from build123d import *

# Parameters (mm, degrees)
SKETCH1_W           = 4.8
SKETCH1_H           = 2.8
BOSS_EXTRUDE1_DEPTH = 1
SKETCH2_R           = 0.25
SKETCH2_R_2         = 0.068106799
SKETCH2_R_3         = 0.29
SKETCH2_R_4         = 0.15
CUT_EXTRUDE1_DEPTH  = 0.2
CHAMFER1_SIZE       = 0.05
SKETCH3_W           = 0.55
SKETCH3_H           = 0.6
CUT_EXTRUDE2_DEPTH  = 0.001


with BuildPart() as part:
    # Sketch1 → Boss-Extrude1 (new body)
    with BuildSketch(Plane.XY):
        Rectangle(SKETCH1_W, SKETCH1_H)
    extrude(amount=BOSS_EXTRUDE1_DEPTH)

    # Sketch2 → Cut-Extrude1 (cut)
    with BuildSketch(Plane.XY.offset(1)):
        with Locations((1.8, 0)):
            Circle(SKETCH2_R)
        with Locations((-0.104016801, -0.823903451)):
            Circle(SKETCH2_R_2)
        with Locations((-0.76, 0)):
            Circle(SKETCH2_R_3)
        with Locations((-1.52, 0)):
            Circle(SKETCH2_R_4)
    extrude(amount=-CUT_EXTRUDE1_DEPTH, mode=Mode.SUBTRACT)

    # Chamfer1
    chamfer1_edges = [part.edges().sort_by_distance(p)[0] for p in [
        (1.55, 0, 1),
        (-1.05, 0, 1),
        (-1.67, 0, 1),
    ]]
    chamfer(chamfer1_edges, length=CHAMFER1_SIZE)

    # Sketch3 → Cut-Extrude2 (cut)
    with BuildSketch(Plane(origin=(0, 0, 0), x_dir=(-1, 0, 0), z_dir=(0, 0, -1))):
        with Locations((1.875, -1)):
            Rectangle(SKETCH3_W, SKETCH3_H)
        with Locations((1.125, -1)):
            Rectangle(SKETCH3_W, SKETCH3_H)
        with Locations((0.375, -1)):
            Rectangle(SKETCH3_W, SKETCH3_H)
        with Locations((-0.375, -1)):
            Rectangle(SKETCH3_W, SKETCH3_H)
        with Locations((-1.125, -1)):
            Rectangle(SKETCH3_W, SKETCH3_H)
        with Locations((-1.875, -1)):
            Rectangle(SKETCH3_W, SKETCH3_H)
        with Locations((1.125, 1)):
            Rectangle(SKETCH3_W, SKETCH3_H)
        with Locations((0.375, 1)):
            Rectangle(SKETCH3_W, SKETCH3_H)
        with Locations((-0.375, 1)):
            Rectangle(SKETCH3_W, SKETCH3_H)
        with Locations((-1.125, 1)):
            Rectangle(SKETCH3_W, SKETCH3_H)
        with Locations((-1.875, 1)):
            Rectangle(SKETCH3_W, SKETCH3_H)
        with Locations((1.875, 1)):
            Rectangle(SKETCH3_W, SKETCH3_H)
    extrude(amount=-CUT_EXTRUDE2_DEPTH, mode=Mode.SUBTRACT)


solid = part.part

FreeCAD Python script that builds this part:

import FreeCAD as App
import Part
import Sketcher

V = App.Vector


def edges_at(feature, points):
    """Names of the edges that pass closest to the given points."""
    edges = feature.Shape.Edges
    near = lambda p: min(range(len(edges)), key=lambda i: edges[i].distToShape(Part.Vertex(*p))[0])
    return sorted({f"Edge{near(p) + 1}" for p in points})


def add_polygon(sketch, points):
    """Adds a closed chain of lines whose ends are joined by coincident constraints."""
    first, n = sketch.GeometryCount, len(points)
    for a, b in zip(points, points[1:] + points[:1]):
        sketch.addGeometry(Part.LineSegment(App.Vector(*a, 0), App.Vector(*b, 0)), False)
    for i in range(n):
        sketch.addConstraint(Sketcher.Constraint("Coincident", first + i, 2, first + (i + 1) % n, 1))

doc = App.newDocument("Part")
body = doc.addObject("PartDesign::Body", "Body")

# Sketch on XY plane
sketch1 = body.newObject("Sketcher::SketchObject", "Sketch")
sketch1.AttachmentSupport = (doc.getObject("XY_Plane"), [""])
sketch1.MapMode = "FlatFace"
add_polygon(sketch1, [(-2.4, 1.4), (-2.4, -1.4), (2.4, -1.4), (2.4, 1.4)])  # lines 0-3
sketch1.addConstraint([
    Sketcher.Constraint("Vertical", 0),
    Sketcher.Constraint("Horizontal", 1),
    Sketcher.Constraint("Vertical", 2),
    Sketcher.Constraint("Horizontal", 3),
    Sketcher.Constraint("Symmetric", 0, 2, 2, 2, -1, 1),
    Sketcher.Constraint("DistanceX", 1, 1, 1, 2, 4.8),
    Sketcher.Constraint("DistanceY", 0, 2, 0, 1, 2.8),
])
pad1 = body.newObject("PartDesign::Pad", "Pad")
pad1.Profile = sketch1
pad1.Length = 1

# Sketch on XY plane
sketch2 = body.newObject("Sketcher::SketchObject", "Sketch001")
sketch2.AttachmentSupport = (doc.getObject("XY_Plane"), [""])
sketch2.MapMode = "FlatFace"
sketch2.AttachmentOffset = App.Placement(V(0, 0, 1), App.Rotation())
sketch2.addGeometry([
    Part.Circle(V(1.8, 0, 0), V(0, 0, 1), 0.25),
    Part.Circle(V(-0.1, -0.82, 0), V(0, 0, 1), 0.07),
    Part.Circle(V(-0.76, 0, 0), V(0, 0, 1), 0.29),
    Part.Circle(V(-1.52, 0, 0), V(0, 0, 1), 0.15),
], False)
sketch2.addConstraint([
    Sketcher.Constraint("PointOnObject", 0, 3, -1),
    Sketcher.Constraint("PointOnObject", 2, 3, -1),
    Sketcher.Constraint("PointOnObject", 3, 3, -1),
    Sketcher.Constraint("Diameter", 0, 0.5),
    Sketcher.Constraint("Diameter", 3, 0.3),
    Sketcher.Constraint("Diameter", 2, 0.58),
    Sketcher.Constraint("DistanceX", -1, 1, 0, 3, 1.8),
    Sketcher.Constraint("DistanceX", 2, 3, -1, 1, 0.76),
    Sketcher.Constraint("DistanceX", 3, 3, -1, 1, 1.52),
    Sketcher.Constraint("Diameter", 1, 0.136214),
    Sketcher.Constraint("DistanceX", 1, 3, -1, 1, 0.104017),
    Sketcher.Constraint("DistanceY", 1, 3, -1, 1, 0.823903),
])
pocket1 = body.newObject("PartDesign::Pocket", "Pocket")
pocket1.Profile = sketch2
pocket1.Length = 0.2
doc.recompute()

chamfer = body.newObject("PartDesign::Chamfer", "Chamfer")
chamfer.Base = (pocket1, edges_at(pocket1, [(1.55, 0, 1), (-1.05, 0, 1), (-1.67, 0, 1)]))
chamfer.Size = 0.05

# Sketch on XY plane
sketch3 = body.newObject("Sketcher::SketchObject", "Sketch002")
sketch3.AttachmentSupport = (doc.getObject("XY_Plane"), [""])
sketch3.MapMode = "FlatFace"
add_polygon(sketch3, [(-1.6, -0.7), (-1.6, -1.3), (-2.1, -1.3), (-2.1, -0.7)])  # lines 0-3
add_polygon(sketch3, [(-0.8, -0.7), (-0.8, -1.3), (-1.4, -1.3), (-1.4, -0.7)])  # lines 4-7
add_polygon(sketch3, [(-0.1, -0.7), (-0.1, -1.3), (-0.7, -1.3), (-0.7, -0.7)])  # lines 8-11
add_polygon(sketch3, [(0.7, -0.7), (0.7, -1.3), (0.1, -1.3), (0.1, -0.7)])  # lines 12-15
add_polygon(sketch3, [(1.4, -0.7), (1.4, -1.3), (0.8, -1.3), (0.8, -0.7)])  # lines 16-19
add_polygon(sketch3, [(2.1, -0.7), (2.1, -1.3), (1.6, -1.3), (1.6, -0.7)])  # lines 20-23
add_polygon(sketch3, [(-0.8, 1.3), (-0.8, 0.7), (-1.4, 0.7), (-1.4, 1.3)])  # lines 24-27
add_polygon(sketch3, [(-0.1, 1.3), (-0.1, 0.7), (-0.7, 0.7), (-0.7, 1.3)])  # lines 28-31
add_polygon(sketch3, [(0.7, 1.3), (0.7, 0.7), (0.1, 0.7), (0.1, 1.3)])  # lines 32-35
add_polygon(sketch3, [(1.4, 1.3), (1.4, 0.7), (0.8, 0.7), (0.8, 1.3)])  # lines 36-39
add_polygon(sketch3, [(2.1, 1.3), (2.1, 0.7), (1.6, 0.7), (1.6, 1.3)])  # lines 40-43
add_polygon(sketch3, [(-1.6, 1.3), (-1.6, 0.7), (-2.1, 0.7), (-2.1, 1.3)])  # lines 44-47
sketch3.addConstraint([
    Sketcher.Constraint("Vertical", 0),
    Sketcher.Constraint("Horizontal", 1),
    Sketcher.Constraint("Vertical", 2),
    Sketcher.Constraint("Horizontal", 3),
    Sketcher.Constraint("Vertical", 4),
    Sketcher.Constraint("Horizontal", 5),
    Sketcher.Constraint("Vertical", 6),
    Sketcher.Constraint("Horizontal", 7),
    Sketcher.Constraint("Vertical", 8),
    Sketcher.Constraint("Horizontal", 9),
    Sketcher.Constraint("Vertical", 10),
    Sketcher.Constraint("Horizontal", 11),
    Sketcher.Constraint("Vertical", 12),
    Sketcher.Constraint("Horizontal", 13),
    Sketcher.Constraint("Vertical", 14),
    Sketcher.Constraint("Horizontal", 15),
    Sketcher.Constraint("Vertical", 16),
    Sketcher.Constraint("Horizontal", 17),
    Sketcher.Constraint("Vertical", 18),
    Sketcher.Constraint("Horizontal", 19),
    Sketcher.Constraint("Vertical", 20),
    Sketcher.Constraint("Horizontal", 21),
    Sketcher.Constraint("Vertical", 22),
    Sketcher.Constraint("Horizontal", 23),
    Sketcher.Constraint("Vertical", 24),
    Sketcher.Constraint("Horizontal", 25),
    Sketcher.Constraint("Vertical", 26),
    Sketcher.Constraint("Horizontal", 27),
    Sketcher.Constraint("Vertical", 28),
    Sketcher.Constraint("Horizontal", 29),
    Sketcher.Constraint("Vertical", 30),
    Sketcher.Constraint("Horizontal", 31),
    Sketcher.Constraint("Vertical", 32),
    Sketcher.Constraint("Horizontal", 33),
    Sketcher.Constraint("Vertical", 34),
    Sketcher.Constraint("Horizontal", 35),
    Sketcher.Constraint("Vertical", 36),
    Sketcher.Constraint("Horizontal", 37),
    Sketcher.Constraint("Vertical", 38),
    Sketcher.Constraint("Horizontal", 39),
    Sketcher.Constraint("Vertical", 40),
    Sketcher.Constraint("Horizontal", 41),
    Sketcher.Constraint("Vertical", 42),
    Sketcher.Constraint("Horizontal", 43),
    Sketcher.Constraint("Vertical", 44),
    Sketcher.Constraint("Horizontal", 45),
    Sketcher.Constraint("Vertical", 46),
    Sketcher.Constraint("Horizontal", 47),
    Sketcher.Constraint("Symmetric", 18, 2, 24, 2, -1, 1),
    Sketcher.Constraint("Symmetric", 16, 2, 26, 2, -1, 1),
    Sketcher.Constraint("Symmetric", 14, 2, 28, 2, -1, 1),
    Sketcher.Constraint("Symmetric", 12, 2, 30, 2, -1, 1),
    Sketcher.Constraint("Symmetric", 10, 2, 32, 2, -1, 1),
    Sketcher.Constraint("Symmetric", 8, 2, 34, 2, -1, 1),
    Sketcher.Constraint("Symmetric", 6, 2, 36, 2, -1, 1),
    Sketcher.Constraint("Symmetric", 4, 2, 38, 2, -1, 1),
    Sketcher.Constraint("Symmetric", 2, 2, 40, 2, -1, 1),
    Sketcher.Constraint("Symmetric", 0, 2, 42, 2, -1, 1),
    Sketcher.Constraint("Symmetric", 22, 2, 44, 2, -1, 1),
    Sketcher.Constraint("Symmetric", 20, 2, 46, 2, -1, 1),
    Sketcher.Constraint("Symmetric", 9, 2, 12, 2, -2),
    Sketcher.Constraint("Symmetric", 11, 2, 14, 2, -2),
    Sketcher.Constraint("Symmetric", 5, 2, 16, 2, -2),
    Sketcher.Constraint("Symmetric", 7, 2, 18, 2, -2),
    Sketcher.Constraint("Symmetric", 1, 2, 20, 2, -2),
    Sketcher.Constraint("Symmetric", 3, 2, 22, 2, -2),
    Sketcher.Constraint("Horizontal", 1, 2, 4, 2),
    Sketcher.Constraint("Horizontal", 3, 2, 6, 2),
    Sketcher.Constraint("Horizontal", 5, 2, 8, 2),
    Sketcher.Constraint("Horizontal", 7, 2, 10, 2),
    Sketcher.Constraint("Equal", 3, 5),
    Sketcher.Constraint("Equal", 7, 9),
    Sketcher.Constraint("DistanceY", 0, 2, 0, 1, 0.6),
    Sketcher.Constraint("DistanceY", 6, 2, 26, 2, 2.0),
    Sketcher.Constraint("DistanceX", 1, 2, 1, 1, 0.55),
    Sketcher.Constraint("DistanceX", 0, 2, -1, 1, 1.6),
    Sketcher.Constraint("DistanceX", 5, 2, -1, 1, 1.4),
    Sketcher.Constraint("DistanceX", 8, 2, -1, 1, 0.1),
])
pocket2 = body.newObject("PartDesign::Pocket", "Pocket001")
pocket2.Profile = sketch3
pocket2.Length = 0.001
pocket2.Reversed = True

doc.recompute()
